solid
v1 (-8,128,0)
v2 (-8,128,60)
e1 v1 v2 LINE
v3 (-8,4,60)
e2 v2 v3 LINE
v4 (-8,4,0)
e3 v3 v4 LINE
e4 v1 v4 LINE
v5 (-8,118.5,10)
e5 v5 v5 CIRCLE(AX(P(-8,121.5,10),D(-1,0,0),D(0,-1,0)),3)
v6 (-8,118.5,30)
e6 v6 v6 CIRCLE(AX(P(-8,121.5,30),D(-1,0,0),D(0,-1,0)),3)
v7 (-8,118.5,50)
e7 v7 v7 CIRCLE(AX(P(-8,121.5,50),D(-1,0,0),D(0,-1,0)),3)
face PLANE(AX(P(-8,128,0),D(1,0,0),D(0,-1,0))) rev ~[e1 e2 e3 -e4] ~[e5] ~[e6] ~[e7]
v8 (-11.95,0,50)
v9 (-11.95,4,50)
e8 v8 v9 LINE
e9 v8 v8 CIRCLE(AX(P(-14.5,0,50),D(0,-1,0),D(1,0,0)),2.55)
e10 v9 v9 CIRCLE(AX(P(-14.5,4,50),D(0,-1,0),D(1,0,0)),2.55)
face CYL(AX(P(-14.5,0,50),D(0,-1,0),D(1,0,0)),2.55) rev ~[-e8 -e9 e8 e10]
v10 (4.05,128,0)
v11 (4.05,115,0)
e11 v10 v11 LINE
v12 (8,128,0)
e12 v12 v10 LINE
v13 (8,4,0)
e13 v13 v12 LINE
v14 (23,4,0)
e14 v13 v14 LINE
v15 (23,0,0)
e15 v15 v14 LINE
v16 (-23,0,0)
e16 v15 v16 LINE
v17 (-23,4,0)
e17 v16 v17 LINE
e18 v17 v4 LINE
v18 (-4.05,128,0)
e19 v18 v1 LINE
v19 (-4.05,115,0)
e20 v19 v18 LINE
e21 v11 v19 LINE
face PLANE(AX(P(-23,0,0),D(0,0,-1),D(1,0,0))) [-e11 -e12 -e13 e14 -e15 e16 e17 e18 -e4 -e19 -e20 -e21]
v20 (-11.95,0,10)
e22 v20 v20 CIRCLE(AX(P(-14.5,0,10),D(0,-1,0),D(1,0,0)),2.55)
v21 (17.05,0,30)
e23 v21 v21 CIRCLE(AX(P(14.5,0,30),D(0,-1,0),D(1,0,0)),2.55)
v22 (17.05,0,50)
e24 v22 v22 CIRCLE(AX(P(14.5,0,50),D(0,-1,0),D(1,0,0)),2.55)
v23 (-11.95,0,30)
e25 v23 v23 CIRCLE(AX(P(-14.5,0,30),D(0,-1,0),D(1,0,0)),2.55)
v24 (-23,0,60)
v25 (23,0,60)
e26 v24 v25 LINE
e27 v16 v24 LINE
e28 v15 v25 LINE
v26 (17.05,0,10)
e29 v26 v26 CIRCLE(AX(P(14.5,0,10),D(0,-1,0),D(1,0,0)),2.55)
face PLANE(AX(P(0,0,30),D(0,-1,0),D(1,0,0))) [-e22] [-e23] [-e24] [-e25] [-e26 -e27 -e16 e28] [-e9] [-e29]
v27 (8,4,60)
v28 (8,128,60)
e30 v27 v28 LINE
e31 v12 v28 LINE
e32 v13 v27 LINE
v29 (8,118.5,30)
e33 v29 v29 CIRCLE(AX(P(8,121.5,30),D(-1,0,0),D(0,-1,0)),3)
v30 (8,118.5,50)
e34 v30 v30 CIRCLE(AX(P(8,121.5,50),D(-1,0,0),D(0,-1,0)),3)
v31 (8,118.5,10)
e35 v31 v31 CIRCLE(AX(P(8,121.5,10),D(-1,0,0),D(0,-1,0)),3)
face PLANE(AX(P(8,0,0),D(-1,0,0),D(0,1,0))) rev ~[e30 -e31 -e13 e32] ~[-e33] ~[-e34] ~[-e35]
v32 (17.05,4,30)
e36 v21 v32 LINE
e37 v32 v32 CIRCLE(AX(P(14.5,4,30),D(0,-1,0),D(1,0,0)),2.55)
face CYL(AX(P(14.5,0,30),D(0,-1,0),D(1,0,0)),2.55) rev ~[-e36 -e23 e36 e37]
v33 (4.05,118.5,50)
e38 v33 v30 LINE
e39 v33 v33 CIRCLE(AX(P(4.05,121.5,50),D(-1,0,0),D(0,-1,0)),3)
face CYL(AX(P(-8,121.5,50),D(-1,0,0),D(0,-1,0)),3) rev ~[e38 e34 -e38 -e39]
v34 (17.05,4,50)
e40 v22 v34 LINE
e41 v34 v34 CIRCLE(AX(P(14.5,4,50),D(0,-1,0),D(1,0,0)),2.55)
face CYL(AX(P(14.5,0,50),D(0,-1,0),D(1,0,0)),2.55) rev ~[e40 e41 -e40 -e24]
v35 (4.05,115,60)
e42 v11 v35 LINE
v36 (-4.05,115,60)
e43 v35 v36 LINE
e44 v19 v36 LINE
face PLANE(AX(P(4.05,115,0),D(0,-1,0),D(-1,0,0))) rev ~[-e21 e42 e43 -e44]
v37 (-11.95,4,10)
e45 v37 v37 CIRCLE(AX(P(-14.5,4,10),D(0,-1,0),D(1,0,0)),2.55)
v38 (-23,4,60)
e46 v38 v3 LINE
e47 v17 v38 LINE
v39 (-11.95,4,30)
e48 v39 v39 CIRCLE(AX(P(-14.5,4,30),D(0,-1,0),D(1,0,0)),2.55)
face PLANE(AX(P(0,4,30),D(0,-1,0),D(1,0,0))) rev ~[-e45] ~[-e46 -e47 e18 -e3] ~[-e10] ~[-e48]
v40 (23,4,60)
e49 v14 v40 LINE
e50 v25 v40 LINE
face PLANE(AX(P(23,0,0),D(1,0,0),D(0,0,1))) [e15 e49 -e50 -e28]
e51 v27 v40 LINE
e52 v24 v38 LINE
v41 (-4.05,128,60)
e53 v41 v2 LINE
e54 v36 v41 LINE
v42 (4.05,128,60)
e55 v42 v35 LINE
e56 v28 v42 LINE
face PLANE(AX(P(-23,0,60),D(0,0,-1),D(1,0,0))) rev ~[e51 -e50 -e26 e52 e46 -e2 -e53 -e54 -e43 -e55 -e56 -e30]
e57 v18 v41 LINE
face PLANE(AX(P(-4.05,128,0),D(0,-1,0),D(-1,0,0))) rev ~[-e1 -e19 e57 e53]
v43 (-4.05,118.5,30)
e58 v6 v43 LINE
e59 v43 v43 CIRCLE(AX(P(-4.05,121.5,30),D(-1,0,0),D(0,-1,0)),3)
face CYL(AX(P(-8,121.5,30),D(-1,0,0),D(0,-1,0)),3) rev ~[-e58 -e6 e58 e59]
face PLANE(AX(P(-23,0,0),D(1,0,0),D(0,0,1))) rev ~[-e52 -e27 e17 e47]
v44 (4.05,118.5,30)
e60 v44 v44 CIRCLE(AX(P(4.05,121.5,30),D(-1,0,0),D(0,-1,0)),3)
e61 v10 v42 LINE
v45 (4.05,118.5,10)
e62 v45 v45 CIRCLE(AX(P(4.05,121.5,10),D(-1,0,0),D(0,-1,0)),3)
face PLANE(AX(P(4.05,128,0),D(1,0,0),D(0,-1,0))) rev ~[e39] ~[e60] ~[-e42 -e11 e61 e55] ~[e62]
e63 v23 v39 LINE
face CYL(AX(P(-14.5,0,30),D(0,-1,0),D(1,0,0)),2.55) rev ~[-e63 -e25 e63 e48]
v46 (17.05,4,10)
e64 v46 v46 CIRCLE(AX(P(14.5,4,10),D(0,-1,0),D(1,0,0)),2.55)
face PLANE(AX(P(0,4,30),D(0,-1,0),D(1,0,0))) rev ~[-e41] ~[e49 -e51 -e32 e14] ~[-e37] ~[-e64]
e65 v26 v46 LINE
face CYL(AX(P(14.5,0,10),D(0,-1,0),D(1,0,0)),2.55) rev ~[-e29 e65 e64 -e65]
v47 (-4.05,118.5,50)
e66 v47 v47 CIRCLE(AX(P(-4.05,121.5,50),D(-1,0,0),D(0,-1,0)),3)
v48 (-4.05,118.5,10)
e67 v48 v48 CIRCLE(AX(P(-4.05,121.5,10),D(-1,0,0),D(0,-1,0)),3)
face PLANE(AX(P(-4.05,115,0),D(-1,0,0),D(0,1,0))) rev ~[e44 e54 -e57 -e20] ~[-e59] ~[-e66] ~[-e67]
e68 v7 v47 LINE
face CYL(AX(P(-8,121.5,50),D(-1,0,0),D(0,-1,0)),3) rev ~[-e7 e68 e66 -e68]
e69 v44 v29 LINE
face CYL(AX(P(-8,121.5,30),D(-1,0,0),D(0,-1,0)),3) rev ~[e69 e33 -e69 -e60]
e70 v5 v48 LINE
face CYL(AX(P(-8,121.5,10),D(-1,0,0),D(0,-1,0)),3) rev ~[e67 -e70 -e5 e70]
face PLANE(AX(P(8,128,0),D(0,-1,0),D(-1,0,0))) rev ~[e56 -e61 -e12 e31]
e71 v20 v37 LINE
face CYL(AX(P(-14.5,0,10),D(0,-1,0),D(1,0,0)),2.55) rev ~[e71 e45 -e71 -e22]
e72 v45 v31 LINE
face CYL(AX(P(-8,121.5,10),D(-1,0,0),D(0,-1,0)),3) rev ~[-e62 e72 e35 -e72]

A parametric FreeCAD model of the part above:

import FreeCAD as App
import Part
import Sketcher

V = App.Vector


def add_polygon(sketch, points):
    """Adds a closed chain of lines whose ends are joined by coincident constraints."""
    first, n = sketch.GeometryCount, len(points)
    for a, b in zip(points, points[1:] + points[:1]):
        sketch.addGeometry(Part.LineSegment(App.Vector(*a, 0), App.Vector(*b, 0)), False)
    for i in range(n):
        sketch.addConstraint(Sketcher.Constraint("Coincident", first + i, 2, first + (i + 1) % n, 1))

doc = App.newDocument("Part")
body = doc.addObject("PartDesign::Body", "Body")

sketch1 = doc.addObject("Sketcher::SketchObject", "Sketch")
body.addObject(sketch1)
sketch1.AttachmentSupport = (doc.XY_Plane, [""])
sketch1.MapMode = "FlatFace"
add_polygon(sketch1, [(-8, 0), (8, 0), (8, 128), (4.05, 128), (4.05, 115), (-4.05, 115), (-4.05, 128), (-8, 128)])
sketch1.addConstraint([
    Sketcher.Constraint("Horizontal", 0),
    Sketcher.Constraint("Vertical", 1),
    Sketcher.Constraint("Horizontal", 2),
    Sketcher.Constraint("Vertical", 3),
    Sketcher.Constraint("Horizontal", 4),
    Sketcher.Constraint("Vertical", 5),
    Sketcher.Constraint("Horizontal", 6),
    Sketcher.Constraint("Vertical", 7),
    Sketcher.Constraint("Symmetric", 0, 2, 7, 2, -1, 1),
    Sketcher.Constraint("Symmetric", 2, 2, 5, 2, -2),
    Sketcher.Constraint("DistanceX", 0, 1, 0, 2, 16.0),
    Sketcher.Constraint("DistanceY", 1, 1, 1, 2, 128.0),
    Sketcher.Constraint("DistanceY", 3, 2, 3, 1, 13.0),
    Sketcher.Constraint("DistanceX", 4, 2, 4, 1, 8.1),
])
pad1 = doc.addObject("PartDesign::Pad", "Pad")
body.addObject(pad1)
pad1.Profile = sketch1
pad1.Length = 60

sketch2 = doc.addObject("Sketcher::SketchObject", "Sketch001")
body.addObject(sketch2)
sketch2.AttachmentSupport = (doc.YZ_Plane, [""])
sketch2.MapMode = "FlatFace"
sketch2.AttachmentOffset = App.Placement(V(0, 0, -8), App.Rotation())
sketch2.addGeometry([
    Part.Circle(V(121.5, 30, 0), V(0, 0, 1), 3),
    Part.Circle(V(121.5, 10, 0), V(0, 0, 1), 3),
    Part.Circle(V(121.5, 50, 0), V(0, 0, 1), 3),
], False)
sketch2.addConstraint([
    Sketcher.Constraint("Equal", 0, 1),
    Sketcher.Constraint("Equal", 1, 2),
    Sketcher.Constraint("Vertical", 0, 3, 1, 3),
    Sketcher.Constraint("Vertical", 1, 3, 2, 3),
    Sketcher.Constraint("Diameter", 0, 6.0),
    Sketcher.Constraint("DistanceY", -1, 1, 0, 3, 30.0),
    Sketcher.Constraint("DistanceY", -1, 1, 1, 3, 10.0),
    Sketcher.Constraint("DistanceY", -1, 1, 2, 3, 50.0),
    Sketcher.Constraint("DistanceX", -1, 1, 0, 3, 121.5),
])
pocket1 = doc.addObject("PartDesign::Pocket", "Pocket")
body.addObject(pocket1)
pocket1.Profile = sketch2
pocket1.Length = 25
pocket1.Reversed = True

sketch3 = doc.addObject("Sketcher::SketchObject", "Sketch002")
body.addObject(sketch3)
sketch3.AttachmentSupport = (doc.XZ_Plane, [""])
sketch3.MapMode = "FlatFace"
add_polygon(sketch3, [(-23, 60), (-23, 0), (23, 0), (23, 60)])
sketch3.addGeometry(Part.Circle(V(-14.5, 10, 0), V(0, 0, 1), 2.55), False)
sketch3.addGeometry(Part.Circle(V(14.5, 10, 0), V(0, 0, 1), 2.55), False)
sketch3.addGeometry(Part.Circle(V(-14.5, 30, 0), V(0, 0, 1), 2.55), False)
sketch3.addGeometry(Part.Circle(V(-14.5, 50, 0), V(0, 0, 1), 2.55), False)
sketch3.addGeometry(Part.Circle(V(14.5, 30, 0), V(0, 0, 1), 2.55), False)
sketch3.addGeometry(Part.Circle(V(14.5, 50, 0), V(0, 0, 1), 2.55), False)
sketch3.addConstraint([
    Sketcher.Constraint("Vertical", 0),
    Sketcher.Constraint("Horizontal", 1),
    Sketcher.Constraint("Vertical", 2),
    Sketcher.Constraint("Horizontal", 3),
    Sketcher.Constraint("Equal", 4, 5),
    Sketcher.Constraint("Equal", 5, 6),
    Sketcher.Constraint("Equal", 6, 7),
    Sketcher.Constraint("Equal", 7, 8),
    Sketcher.Constraint("Equal", 8, 9),
    Sketcher.Constraint("Symmetric", 0, 2, 1, 2, -1, 1),
    Sketcher.Constraint("Symmetric", 4, 3, 5, 3, -2),
    Sketcher.Constraint("Symmetric", 6, 3, 8, 3, -2),
    Sketcher.Constraint("Symmetric", 7, 3, 9, 3, -2),
    Sketcher.Constraint("Vertical", 4, 3, 6, 3),
    Sketcher.Constraint("Vertical", 6, 3, 7, 3),
    Sketcher.Constraint("Diameter", 4, 5.1),
    Sketcher.Constraint("DistanceX", 1, 1, 1, 2, 46.0),
    Sketcher.Constraint("DistanceY", 0, 2, 0, 1, 60.0),
    Sketcher.Constraint("DistanceY", -1, 1, 4, 3, 10.0),
    Sketcher.Constraint("DistanceY", -1, 1, 6, 3, 30.0),
    Sketcher.Constraint("DistanceY", -1, 1, 7, 3, 50.0),
    Sketcher.Constraint("DistanceX", 4, 3, 5, 3, 29.0),
])
pad2 = doc.addObject("PartDesign::Pad", "Pad001")
body.addObject(pad2)
pad2.Profile = sketch3
pad2.Length = 4
pad2.Reversed = True

doc.recompute()
